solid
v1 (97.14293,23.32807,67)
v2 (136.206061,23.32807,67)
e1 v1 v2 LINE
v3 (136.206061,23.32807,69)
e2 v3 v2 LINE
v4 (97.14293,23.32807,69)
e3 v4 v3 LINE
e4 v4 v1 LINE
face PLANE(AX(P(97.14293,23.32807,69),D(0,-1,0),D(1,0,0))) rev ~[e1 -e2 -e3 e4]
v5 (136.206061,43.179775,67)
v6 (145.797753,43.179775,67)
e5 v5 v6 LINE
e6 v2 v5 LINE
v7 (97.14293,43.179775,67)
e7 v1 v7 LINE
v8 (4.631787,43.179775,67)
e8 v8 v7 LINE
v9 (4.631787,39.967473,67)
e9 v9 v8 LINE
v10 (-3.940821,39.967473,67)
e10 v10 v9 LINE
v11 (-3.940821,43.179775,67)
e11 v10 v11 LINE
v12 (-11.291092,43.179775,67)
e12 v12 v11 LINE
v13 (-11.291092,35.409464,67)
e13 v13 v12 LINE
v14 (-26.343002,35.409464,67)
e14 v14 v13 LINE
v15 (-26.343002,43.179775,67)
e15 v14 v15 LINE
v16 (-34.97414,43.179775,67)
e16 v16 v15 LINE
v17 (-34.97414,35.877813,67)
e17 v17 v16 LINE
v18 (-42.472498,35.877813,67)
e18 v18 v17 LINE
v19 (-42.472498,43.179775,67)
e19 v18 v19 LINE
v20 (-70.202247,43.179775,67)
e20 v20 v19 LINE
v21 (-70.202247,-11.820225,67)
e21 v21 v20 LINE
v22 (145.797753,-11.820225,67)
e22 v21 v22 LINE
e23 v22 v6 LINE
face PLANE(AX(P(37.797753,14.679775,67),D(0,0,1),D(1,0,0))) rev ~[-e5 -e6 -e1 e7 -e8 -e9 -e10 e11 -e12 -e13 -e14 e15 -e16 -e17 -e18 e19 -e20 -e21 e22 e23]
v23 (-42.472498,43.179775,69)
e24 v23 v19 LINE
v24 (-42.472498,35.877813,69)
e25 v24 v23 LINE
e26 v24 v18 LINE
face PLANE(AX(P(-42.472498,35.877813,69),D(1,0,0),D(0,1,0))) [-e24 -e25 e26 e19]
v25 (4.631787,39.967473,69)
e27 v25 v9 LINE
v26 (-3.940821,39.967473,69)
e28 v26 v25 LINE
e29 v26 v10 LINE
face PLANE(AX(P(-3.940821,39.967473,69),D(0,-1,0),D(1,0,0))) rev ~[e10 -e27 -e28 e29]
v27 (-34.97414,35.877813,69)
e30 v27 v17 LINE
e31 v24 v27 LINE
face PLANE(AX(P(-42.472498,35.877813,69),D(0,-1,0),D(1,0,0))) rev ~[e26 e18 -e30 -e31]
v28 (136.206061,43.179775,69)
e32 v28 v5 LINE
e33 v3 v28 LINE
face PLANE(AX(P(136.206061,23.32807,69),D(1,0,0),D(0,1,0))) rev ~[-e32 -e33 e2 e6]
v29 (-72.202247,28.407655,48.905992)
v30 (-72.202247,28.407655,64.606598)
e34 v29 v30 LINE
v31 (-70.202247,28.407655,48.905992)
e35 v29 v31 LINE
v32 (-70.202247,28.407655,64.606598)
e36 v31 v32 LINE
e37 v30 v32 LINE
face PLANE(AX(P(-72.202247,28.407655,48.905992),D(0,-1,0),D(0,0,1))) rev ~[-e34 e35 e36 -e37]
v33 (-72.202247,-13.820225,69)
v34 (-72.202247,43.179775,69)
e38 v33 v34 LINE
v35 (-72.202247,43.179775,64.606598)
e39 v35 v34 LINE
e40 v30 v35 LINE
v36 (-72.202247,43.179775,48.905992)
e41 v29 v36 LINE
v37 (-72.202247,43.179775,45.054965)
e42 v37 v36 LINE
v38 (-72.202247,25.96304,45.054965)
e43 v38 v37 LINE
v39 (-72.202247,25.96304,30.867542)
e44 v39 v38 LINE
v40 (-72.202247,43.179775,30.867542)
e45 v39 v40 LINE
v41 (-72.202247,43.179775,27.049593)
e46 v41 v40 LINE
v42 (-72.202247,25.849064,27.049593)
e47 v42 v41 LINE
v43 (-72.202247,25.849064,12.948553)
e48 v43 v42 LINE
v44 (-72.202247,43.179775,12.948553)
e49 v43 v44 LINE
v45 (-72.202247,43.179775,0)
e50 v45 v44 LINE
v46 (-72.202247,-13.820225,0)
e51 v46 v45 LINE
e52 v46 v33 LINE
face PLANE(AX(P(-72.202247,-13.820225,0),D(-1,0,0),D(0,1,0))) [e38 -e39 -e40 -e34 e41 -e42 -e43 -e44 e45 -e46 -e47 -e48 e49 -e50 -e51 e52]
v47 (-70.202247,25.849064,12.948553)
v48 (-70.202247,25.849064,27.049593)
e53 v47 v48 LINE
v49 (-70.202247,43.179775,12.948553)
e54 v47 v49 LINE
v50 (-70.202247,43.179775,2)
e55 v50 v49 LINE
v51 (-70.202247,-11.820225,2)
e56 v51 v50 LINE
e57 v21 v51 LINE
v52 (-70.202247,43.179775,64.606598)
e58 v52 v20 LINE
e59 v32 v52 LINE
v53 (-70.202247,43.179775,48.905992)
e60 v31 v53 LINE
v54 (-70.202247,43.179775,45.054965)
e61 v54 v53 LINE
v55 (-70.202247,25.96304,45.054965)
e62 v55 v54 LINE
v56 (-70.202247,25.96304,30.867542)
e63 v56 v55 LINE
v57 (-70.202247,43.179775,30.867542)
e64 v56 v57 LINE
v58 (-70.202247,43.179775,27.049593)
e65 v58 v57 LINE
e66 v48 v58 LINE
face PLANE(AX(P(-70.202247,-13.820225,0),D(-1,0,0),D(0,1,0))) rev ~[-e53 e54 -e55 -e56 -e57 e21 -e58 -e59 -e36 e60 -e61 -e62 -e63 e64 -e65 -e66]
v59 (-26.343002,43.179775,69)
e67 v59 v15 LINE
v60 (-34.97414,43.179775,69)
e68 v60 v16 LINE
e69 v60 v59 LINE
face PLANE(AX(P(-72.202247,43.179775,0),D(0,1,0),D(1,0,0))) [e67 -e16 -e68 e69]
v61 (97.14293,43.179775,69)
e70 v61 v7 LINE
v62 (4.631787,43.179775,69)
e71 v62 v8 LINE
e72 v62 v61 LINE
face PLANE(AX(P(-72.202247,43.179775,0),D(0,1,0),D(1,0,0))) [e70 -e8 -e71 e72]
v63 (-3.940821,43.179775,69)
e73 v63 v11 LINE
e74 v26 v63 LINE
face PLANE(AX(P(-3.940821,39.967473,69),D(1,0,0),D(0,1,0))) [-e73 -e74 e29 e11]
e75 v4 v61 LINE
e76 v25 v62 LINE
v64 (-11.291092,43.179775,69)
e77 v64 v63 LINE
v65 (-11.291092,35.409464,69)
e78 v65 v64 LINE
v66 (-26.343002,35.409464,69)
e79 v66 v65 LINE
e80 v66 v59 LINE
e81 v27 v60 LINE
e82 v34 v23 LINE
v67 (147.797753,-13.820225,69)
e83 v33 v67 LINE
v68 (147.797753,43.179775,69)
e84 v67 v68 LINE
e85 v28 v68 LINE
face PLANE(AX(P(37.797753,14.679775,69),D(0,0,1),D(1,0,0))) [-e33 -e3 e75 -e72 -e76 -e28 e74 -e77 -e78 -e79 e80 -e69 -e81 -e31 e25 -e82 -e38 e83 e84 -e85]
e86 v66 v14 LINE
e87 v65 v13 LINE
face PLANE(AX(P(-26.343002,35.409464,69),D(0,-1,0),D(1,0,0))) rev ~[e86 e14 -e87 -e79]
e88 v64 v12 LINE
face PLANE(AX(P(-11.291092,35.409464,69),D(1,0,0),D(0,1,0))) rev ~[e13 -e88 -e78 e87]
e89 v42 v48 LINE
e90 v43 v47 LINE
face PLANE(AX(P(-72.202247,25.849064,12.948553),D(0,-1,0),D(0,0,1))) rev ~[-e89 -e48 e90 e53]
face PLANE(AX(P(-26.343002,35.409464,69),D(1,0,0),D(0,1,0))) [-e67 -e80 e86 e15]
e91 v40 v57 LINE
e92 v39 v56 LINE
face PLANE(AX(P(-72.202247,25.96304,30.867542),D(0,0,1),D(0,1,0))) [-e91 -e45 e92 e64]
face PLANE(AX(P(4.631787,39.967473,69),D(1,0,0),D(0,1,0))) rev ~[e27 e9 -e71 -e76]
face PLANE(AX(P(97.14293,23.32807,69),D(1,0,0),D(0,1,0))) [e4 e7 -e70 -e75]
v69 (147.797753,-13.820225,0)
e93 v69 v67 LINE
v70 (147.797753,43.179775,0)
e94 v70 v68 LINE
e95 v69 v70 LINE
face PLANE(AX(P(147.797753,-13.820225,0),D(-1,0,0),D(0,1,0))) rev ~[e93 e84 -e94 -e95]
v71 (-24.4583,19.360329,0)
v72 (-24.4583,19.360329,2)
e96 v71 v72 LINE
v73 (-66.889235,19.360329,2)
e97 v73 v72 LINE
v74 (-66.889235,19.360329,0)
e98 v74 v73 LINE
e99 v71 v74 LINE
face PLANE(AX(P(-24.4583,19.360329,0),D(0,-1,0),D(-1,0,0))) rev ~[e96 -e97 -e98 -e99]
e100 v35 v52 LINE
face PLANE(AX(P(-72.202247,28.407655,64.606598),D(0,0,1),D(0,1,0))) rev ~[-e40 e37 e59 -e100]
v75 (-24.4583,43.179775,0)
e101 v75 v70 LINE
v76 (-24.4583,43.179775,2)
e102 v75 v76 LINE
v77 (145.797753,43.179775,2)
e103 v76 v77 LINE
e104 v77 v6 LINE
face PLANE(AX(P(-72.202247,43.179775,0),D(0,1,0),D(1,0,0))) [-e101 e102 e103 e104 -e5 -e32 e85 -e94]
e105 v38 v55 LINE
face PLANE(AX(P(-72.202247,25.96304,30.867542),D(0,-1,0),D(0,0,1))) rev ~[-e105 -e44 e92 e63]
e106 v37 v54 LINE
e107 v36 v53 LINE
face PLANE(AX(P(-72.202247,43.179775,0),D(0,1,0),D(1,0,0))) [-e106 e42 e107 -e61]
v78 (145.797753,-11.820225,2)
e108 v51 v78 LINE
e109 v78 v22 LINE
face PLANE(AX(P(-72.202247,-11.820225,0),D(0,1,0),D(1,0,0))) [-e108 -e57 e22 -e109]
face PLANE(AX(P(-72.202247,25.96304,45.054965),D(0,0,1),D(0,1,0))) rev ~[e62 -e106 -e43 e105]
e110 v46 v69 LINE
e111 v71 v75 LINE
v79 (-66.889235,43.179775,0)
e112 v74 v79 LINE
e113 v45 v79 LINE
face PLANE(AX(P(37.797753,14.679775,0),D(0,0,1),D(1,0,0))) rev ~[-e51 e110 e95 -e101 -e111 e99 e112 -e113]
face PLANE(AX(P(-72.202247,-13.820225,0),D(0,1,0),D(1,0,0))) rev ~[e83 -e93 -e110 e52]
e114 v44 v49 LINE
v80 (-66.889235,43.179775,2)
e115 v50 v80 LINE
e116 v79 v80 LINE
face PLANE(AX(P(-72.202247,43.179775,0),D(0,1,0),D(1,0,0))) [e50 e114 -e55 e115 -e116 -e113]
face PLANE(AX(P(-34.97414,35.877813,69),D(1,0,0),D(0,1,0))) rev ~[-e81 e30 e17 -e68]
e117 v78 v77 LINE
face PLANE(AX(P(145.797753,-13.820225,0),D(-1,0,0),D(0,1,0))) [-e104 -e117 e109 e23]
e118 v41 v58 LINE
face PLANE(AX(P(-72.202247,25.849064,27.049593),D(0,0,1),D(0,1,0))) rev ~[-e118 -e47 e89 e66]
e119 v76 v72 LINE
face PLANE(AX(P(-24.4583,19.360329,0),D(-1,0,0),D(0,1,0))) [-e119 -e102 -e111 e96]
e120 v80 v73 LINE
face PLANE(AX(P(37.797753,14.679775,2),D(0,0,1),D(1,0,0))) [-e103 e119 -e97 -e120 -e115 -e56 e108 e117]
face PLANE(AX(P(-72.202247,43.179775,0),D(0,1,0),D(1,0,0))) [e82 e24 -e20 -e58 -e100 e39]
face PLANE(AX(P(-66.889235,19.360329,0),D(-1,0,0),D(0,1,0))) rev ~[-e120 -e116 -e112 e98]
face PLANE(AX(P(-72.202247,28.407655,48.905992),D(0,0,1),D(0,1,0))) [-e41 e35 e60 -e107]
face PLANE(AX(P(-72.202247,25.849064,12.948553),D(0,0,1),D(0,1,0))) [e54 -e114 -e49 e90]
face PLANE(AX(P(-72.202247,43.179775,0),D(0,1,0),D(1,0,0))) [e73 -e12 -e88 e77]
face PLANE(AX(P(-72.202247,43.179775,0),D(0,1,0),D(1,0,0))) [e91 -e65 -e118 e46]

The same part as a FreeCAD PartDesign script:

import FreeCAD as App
import Part
import Sketcher

V = App.Vector


def faces_at(feature, points):
    """Names of the faces that lie closest to the given points."""
    faces = feature.Shape.Faces
    near = lambda p: min(range(len(faces)), key=lambda i: faces[i].distToShape(Part.Vertex(*p))[0])
    return sorted({f"Face{near(p) + 1}" for p in points})

doc = App.newDocument("Part")
params = doc.addObject("Spreadsheet::Sheet", "Params")
for row, (alias, value) in enumerate([
    ("sketch1_width", "220 mm"),
    ("sketch1_height", "57 mm"),
    ("pad1_length", "69 mm"),
    ("thickness_wall", "2 mm"),
    ("pocket1_length", "10 mm"),
    ("pocket2_length", "10 mm"),
    ("pocket3_length", "10 mm"),
    ("pocket4_length", "10 mm"),
    ("pocket5_length", "10 mm"),
    ("pocket6_length", "10 mm"),
    ("pocket7_length", "10 mm"),
    ("pocket8_length", "10 mm"),
], start=1):
    params.set(f"A{row}", alias)
    params.set(f"B{row}", "=" + value)
    params.setAlias(f"B{row}", alias)

body = doc.addObject("PartDesign::Body", "Body")

# Sketch on XY plane
sketch1 = body.newObject("Sketcher::SketchObject", "Sketch")
sketch1.AttachmentSupport = (doc.getObject("XY_Plane"), [""])
sketch1.MapMode = "FlatFace"
sketch1.addGeometry([
    Part.LineSegment(V(-72.202247, 43.179775, 0), V(-72.202247, -13.820225, 0)),
    Part.LineSegment(V(-72.202247, -13.820225, 0), V(147.797753, -13.820225, 0)),
    Part.LineSegment(V(147.797753, -13.820225, 0), V(147.797753, 43.179775, 0)),
    Part.LineSegment(V(147.797753, 43.179775, 0), V(-72.202247, 43.179775, 0)),
], False)
sketch1.addConstraint([
    Sketcher.Constraint("Coincident", 0, 2, 1, 1),
    Sketcher.Constraint("Coincident", 1, 2, 2, 1),
    Sketcher.Constraint("Coincident", 2, 2, 3, 1),
    Sketcher.Constraint("Coincident", 3, 2, 0, 1),
    Sketcher.Constraint("Vertical", 0),
    Sketcher.Constraint("Horizontal", 1),
    Sketcher.Constraint("Vertical", 2),
    Sketcher.Constraint("Horizontal", 3),
    Sketcher.Constraint("DistanceX", 1, 1, 1, 2, 220.0),
    Sketcher.Constraint("DistanceY", 0, 2, 0, 1, 57.0),
    Sketcher.Constraint("DistanceX", 0, 2, -1, 1, 72.202247),
    Sketcher.Constraint("DistanceY", 0, 2, -1, 1, 13.820225),
])
sketch1.setExpression("Constraints[8]", "Params.sketch1_width")
sketch1.setExpression("Constraints[9]", "Params.sketch1_height")
pad1 = body.newObject("PartDesign::Pad", "Pad")
pad1.Profile = sketch1
pad1.setExpression("Length", "Params.pad1_length")
doc.recompute()

thickness = body.newObject("PartDesign::Thickness", "Thickness")
thickness.Base = (pad1, faces_at(pad1, [(37.798, 43.18, 34.5)]))
thickness.setExpression("Value", "Params.thickness_wall")
thickness.Reversed = True
thickness.Join = "Intersection"

# Sketch on XY plane
sketch2 = body.newObject("Sketcher::SketchObject", "Sketch001")
sketch2.AttachmentSupport = (doc.getObject("XY_Plane"), [""])
sketch2.MapMode = "FlatFace"
sketch2.addGeometry([
    Part.LineSegment(V(-24.4583, 43.179775, 0), V(-24.4583, 19.360329, 0)),
    Part.LineSegment(V(-24.4583, 19.360329, 0), V(-66.889235, 19.360329, 0)),
    Part.LineSegment(V(-66.889235, 19.360329, 0), V(-66.889235, 43.179775, 0)),
    Part.LineSegment(V(-66.889235, 43.179775, 0), V(-24.4583, 43.179775, 0)),
], False)
sketch2.addConstraint([
    Sketcher.Constraint("Coincident", 0, 2, 1, 1),
    Sketcher.Constraint("Coincident", 1, 2, 2, 1),
    Sketcher.Constraint("Coincident", 2, 2, 3, 1),
    Sketcher.Constraint("Coincident", 3, 2, 0, 1),
    Sketcher.Constraint("Vertical", 0),
    Sketcher.Constraint("Horizontal", 1),
    Sketcher.Constraint("Vertical", 2),
    Sketcher.Constraint("Horizontal", 3),
    Sketcher.Constraint("DistanceX", 0, 2, -1, 1, 24.4583),
    Sketcher.Constraint("DistanceX", 1, 2, 1, 1, 42.430934),
    Sketcher.Constraint("DistanceY", 0, 2, 0, 1, 23.819447),
    Sketcher.Constraint("DistanceY", -1, 1, 0, 2, 19.360329),
])
pocket1 = body.newObject("PartDesign::Pocket", "Pocket")
pocket1.Profile = sketch2
pocket1.setExpression("Length", "Params.pocket1_length")
pocket1.Reversed = True

# Sketch on XY plane
sketch3 = body.newObject("Sketcher::SketchObject", "Sketch002")
sketch3.AttachmentSupport = (doc.getObject("XY_Plane"), [""])
sketch3.MapMode = "FlatFace"
sketch3.AttachmentOffset = App.Placement(V(0, 0, 69), App.Rotation())
sketch3.addGeometry([
    Part.LineSegment(V(97.14293, 43.179775, 0), V(97.14293, 23.32807, 0)),
    Part.LineSegment(V(97.14293, 23.32807, 0), V(136.206061, 23.32807, 0)),
    Part.LineSegment(V(136.206061, 23.32807, 0), V(136.206061, 43.179775, 0)),
    Part.LineSegment(V(136.206061, 43.179775, 0), V(97.14293, 43.179775, 0)),
], False)
sketch3.addConstraint([
    Sketcher.Constraint("Coincident", 0, 2, 1, 1),
    Sketcher.Constraint("Coincident", 1, 2, 2, 1),
    Sketcher.Constraint("Coincident", 2, 2, 3, 1),
    Sketcher.Constraint("Coincident", 3, 2, 0, 1),
    Sketcher.Constraint("Vertical", 0),
    Sketcher.Constraint("Horizontal", 1),
    Sketcher.Constraint("Vertical", 2),
    Sketcher.Constraint("Horizontal", 3),
    Sketcher.Constraint("DistanceX", 1, 1, 1, 2, 39.063131),
    Sketcher.Constraint("DistanceY", 0, 2, 0, 1, 19.851705),
    Sketcher.Constraint("DistanceX", -1, 1, 0, 2, 97.14293),
    Sketcher.Constraint("DistanceY", -1, 1, 0, 2, 23.32807),
])
pocket2 = body.newObject("PartDesign::Pocket", "Pocket001")
pocket2.Profile = sketch3
pocket2.setExpression("Length", "Params.pocket2_length")

# Sketch on YZ plane
sketch4 = body.newObject("Sketcher::SketchObject", "Sketch003")
sketch4.AttachmentSupport = (doc.getObject("YZ_Plane"), [""])
sketch4.MapMode = "FlatFace"
sketch4.AttachmentOffset = App.Placement(V(0, 0, -72.202247), App.Rotation())
sketch4.addGeometry([
    Part.LineSegment(V(43.179775, 48.905992, 0), V(28.407655, 48.905992, 0)),
    Part.LineSegment(V(28.407655, 48.905992, 0), V(28.407655, 64.606598, 0)),
    Part.LineSegment(V(28.407655, 64.606598, 0), V(43.179775, 64.606598, 0)),
    Part.LineSegment(V(43.179775, 64.606598, 0), V(43.179775, 48.905992, 0)),
], False)
sketch4.addConstraint([
    Sketcher.Constraint("Coincident", 0, 2, 1, 1),
    Sketcher.Constraint("Coincident", 1, 2, 2, 1),
    Sketcher.Constraint("Coincident", 2, 2, 3, 1),
    Sketcher.Constraint("Coincident", 3, 2, 0, 1),
    Sketcher.Constraint("Horizontal", 0),
    Sketcher.Constraint("Vertical", 1),
    Sketcher.Constraint("Horizontal", 2),
    Sketcher.Constraint("Vertical", 3),
    Sketcher.Constraint("DistanceX", 0, 2, 0, 1, 14.77212),
    Sketcher.Constraint("DistanceY", 1, 1, 1, 2, 15.700606),
    Sketcher.Constraint("DistanceX", -1, 1, 0, 2, 28.407655),
    Sketcher.Constraint("DistanceY", -1, 1, 0, 2, 48.905992),
])
pocket3 = body.newObject("PartDesign::Pocket", "Pocket002")
pocket3.Profile = sketch4
pocket3.setExpression("Length", "Params.pocket3_length")
pocket3.Reversed = True

# Sketch on YZ plane
sketch5 = body.newObject("Sketcher::SketchObject", "Sketch004")
sketch5.AttachmentSupport = (doc.getObject("YZ_Plane"), [""])
sketch5.MapMode = "FlatFace"
sketch5.AttachmentOffset = App.Placement(V(0, 0, -72.202247), App.Rotation())
sketch5.addGeometry([
    Part.LineSegment(V(43.179775, 30.867542, 0), V(25.96304, 30.867542, 0)),
    Part.LineSegment(V(25.96304, 30.867542, 0), V(25.96304, 45.054965, 0)),
    Part.LineSegment(V(25.96304, 45.054965, 0), V(43.179775, 45.054965, 0)),
    Part.LineSegment(V(43.179775, 45.054965, 0), V(43.179775, 30.867542, 0)),
], False)
sketch5.addConstraint([
    Sketcher.Constraint("Coincident", 0, 2, 1, 1),
    Sketcher.Constraint("Coincident", 1, 2, 2, 1),
    Sketcher.Constraint("Coincident", 2, 2, 3, 1),
    Sketcher.Constraint("Coincident", 3, 2, 0, 1),
    Sketcher.Constraint("Horizontal", 0),
    Sketcher.Constraint("Vertical", 1),
    Sketcher.Constraint("Horizontal", 2),
    Sketcher.Constraint("Vertical", 3),
    Sketcher.Constraint("DistanceX", 0, 2, 0, 1, 17.216735),
    Sketcher.Constraint("DistanceY", 1, 1, 1, 2, 14.187423),
    Sketcher.Constraint("DistanceX", -1, 1, 0, 2, 25.96304),
    Sketcher.Constraint("DistanceY", -1, 1, 0, 2, 30.867542),
])
pocket4 = body.newObject("PartDesign::Pocket", "Pocket003")
pocket4.Profile = sketch5
pocket4.setExpression("Length", "Params.pocket4_length")
pocket4.Reversed = True

# Sketch on YZ plane
sketch6 = body.newObject("Sketcher::SketchObject", "Sketch005")
sketch6.AttachmentSupport = (doc.getObject("YZ_Plane"), [""])
sketch6.MapMode = "FlatFace"
sketch6.AttachmentOffset = App.Placement(V(0, 0, -72.202247), App.Rotation())
sketch6.addGeometry([
    Part.LineSegment(V(43.179775, 12.948553, 0), V(25.849064, 12.948553, 0)),
    Part.LineSegment(V(25.849064, 12.948553, 0), V(25.849064, 27.049593, 0)),
    Part.LineSegment(V(25.849064, 27.049593, 0), V(43.179775, 27.049593, 0)),
    Part.LineSegment(V(43.179775, 27.049593, 0), V(43.179775, 12.948553, 0)),
], False)
sketch6.addConstraint([
    Sketcher.Constraint("Coincident", 0, 2, 1, 1),
    Sketcher.Constraint("Coincident", 1, 2, 2, 1),
    Sketcher.Constraint("Coincident", 2, 2, 3, 1),
    Sketcher.Constraint("Coincident", 3, 2, 0, 1),
    Sketcher.Constraint("Horizontal", 0),
    Sketcher.Constraint("Vertical", 1),
    Sketcher.Constraint("Horizontal", 2),
    Sketcher.Constraint("Vertical", 3),
    Sketcher.Constraint("DistanceX", 0, 2, 0, 1, 17.330711),
    Sketcher.Constraint("DistanceY", 1, 1, 1, 2, 14.101041),
    Sketcher.Constraint("DistanceX", -1, 1, 0, 2, 25.849064),
    Sketcher.Constraint("DistanceY", -1, 1, 0, 2, 12.948553),
])
pocket5 = body.newObject("PartDesign::Pocket", "Pocket004")
pocket5.Profile = sketch6
pocket5.setExpression("Length", "Params.pocket5_length")
pocket5.Reversed = True

# Sketch on XY plane
sketch7 = body.newObject("Sketcher::SketchObject", "Sketch006")
sketch7.AttachmentSupport = (doc.getObject("XY_Plane"), [""])
sketch7.MapMode = "FlatFace"
sketch7.AttachmentOffset = App.Placement(V(0, 0, 69), App.Rotation())
sketch7.addGeometry([
    Part.LineSegment(V(-42.472498, 43.179775, 0), V(-42.472498, 35.877813, 0)),
    Part.LineSegment(V(-42.472498, 35.877813, 0), V(-34.97414, 35.877813, 0)),
    Part.LineSegment(V(-34.97414, 35.877813, 0), V(-34.97414, 43.179775, 0)),
    Part.LineSegment(V(-34.97414, 43.179775, 0), V(-42.472498, 43.179775, 0)),
], False)
sketch7.addConstraint([
    Sketcher.Constraint("Coincident", 0, 2, 1, 1),
    Sketcher.Constraint("Coincident", 1, 2, 2, 1),
    Sketcher.Constraint("Coincident", 2, 2, 3, 1),
    Sketcher.Constraint("Coincident", 3, 2, 0, 1),
    Sketcher.Constraint("Vertical", 0),
    Sketcher.Constraint("Horizontal", 1),
    Sketcher.Constraint("Vertical", 2),
    Sketcher.Constraint("Horizontal", 3),
    Sketcher.Constraint("DistanceX", 1, 1, 1, 2, 7.498358),
    Sketcher.Constraint("DistanceY", 0, 2, 0, 1, 7.301963),
    Sketcher.Constraint("DistanceX", 1, 2, -1, 1, 34.97414),
    Sketcher.Constraint("DistanceY", -1, 1, 0, 2, 35.877813),
])
pocket6 = body.newObject("PartDesign::Pocket", "Pocket005")
pocket6.Profile = sketch7
pocket6.setExpression("Length", "Params.pocket6_length")

# Sketch on XY plane
sketch8 = body.newObject("Sketcher::SketchObject", "Sketch007")
sketch8.AttachmentSupport = (doc.getObject("XY_Plane"), [""])
sketch8.MapMode = "FlatFace"
sketch8.AttachmentOffset = App.Placement(V(0, 0, 69), App.Rotation())
sketch8.addGeometry([
    Part.LineSegment(V(-26.343002, 43.179775, 0), V(-26.343002, 35.409464, 0)),
    Part.LineSegment(V(-26.343002, 35.409464, 0), V(-11.291092, 35.409464, 0)),
    Part.LineSegment(V(-11.291092, 35.409464, 0), V(-11.291092, 43.179775, 0)),
    Part.LineSegment(V(-11.291092, 43.179775, 0), V(-26.343002, 43.179775, 0)),
], False)
sketch8.addConstraint([
    Sketcher.Constraint("Coincident", 0, 2, 1, 1),
    Sketcher.Constraint("Coincident", 1, 2, 2, 1),
    Sketcher.Constraint("Coincident", 2, 2, 3, 1),
    Sketcher.Constraint("Coincident", 3, 2, 0, 1),
    Sketcher.Constraint("Vertical", 0),
    Sketcher.Constraint("Horizontal", 1),
    Sketcher.Constraint("Vertical", 2),
    Sketcher.Constraint("Horizontal", 3),
    Sketcher.Constraint("DistanceX", 0, 2, -1, 1, 26.343002),
    Sketcher.Constraint("DistanceX", 1, 1, 1, 2, 15.05191),
    Sketcher.Constraint("DistanceY", 0, 2, 0, 1, 7.770311),
    Sketcher.Constraint("DistanceY", -1, 1, 0, 2, 35.409464),
])
pocket7 = body.newObject("PartDesign::Pocket", "Pocket006")
pocket7.Profile = sketch8
pocket7.setExpression("Length", "Params.pocket7_length")

# Sketch on XY plane
sketch9 = body.newObject("Sketcher::SketchObject", "Sketch008")
sketch9.AttachmentSupport = (doc.getObject("XY_Plane"), [""])
sketch9.MapMode = "FlatFace"
sketch9.AttachmentOffset = App.Placement(V(0, 0, 69), App.Rotation())
sketch9.addGeometry([
    Part.LineSegment(V(-3.940821, 43.179775, 0), V(-3.940821, 39.967473, 0)),
    Part.LineSegment(V(-3.940821, 39.967473, 0), V(4.631787, 39.967473, 0)),
    Part.LineSegment(V(4.631787, 39.967473, 0), V(4.631787, 43.179775, 0)),
    Part.LineSegment(V(4.631787, 43.179775, 0), V(-3.940821, 43.179775, 0)),
], False)
sketch9.addConstraint([
    Sketcher.Constraint("Coincident", 0, 2, 1, 1),
    Sketcher.Constraint("Coincident", 1, 2, 2, 1),
    Sketcher.Constraint("Coincident", 2, 2, 3, 1),
    Sketcher.Constraint("Coincident", 3, 2, 0, 1),
    Sketcher.Constraint("Vertical", 0),
    Sketcher.Constraint("Horizontal", 1),
    Sketcher.Constraint("Vertical", 2),
    Sketcher.Constraint("Horizontal", 3),
    Sketcher.Constraint("DistanceX", 1, 1, 1, 2, 8.572607),
    Sketcher.Constraint("DistanceY", 0, 2, 0, 1, 3.212303),
    Sketcher.Constraint("DistanceX", 0, 2, -1, 1, 3.940821),
    Sketcher.Constraint("DistanceY", -1, 1, 0, 2, 39.967473),
])
pocket8 = body.newObject("PartDesign::Pocket", "Pocket007")
pocket8.Profile = sketch9
pocket8.setExpression("Length", "Params.pocket8_length")

doc.recompute()
